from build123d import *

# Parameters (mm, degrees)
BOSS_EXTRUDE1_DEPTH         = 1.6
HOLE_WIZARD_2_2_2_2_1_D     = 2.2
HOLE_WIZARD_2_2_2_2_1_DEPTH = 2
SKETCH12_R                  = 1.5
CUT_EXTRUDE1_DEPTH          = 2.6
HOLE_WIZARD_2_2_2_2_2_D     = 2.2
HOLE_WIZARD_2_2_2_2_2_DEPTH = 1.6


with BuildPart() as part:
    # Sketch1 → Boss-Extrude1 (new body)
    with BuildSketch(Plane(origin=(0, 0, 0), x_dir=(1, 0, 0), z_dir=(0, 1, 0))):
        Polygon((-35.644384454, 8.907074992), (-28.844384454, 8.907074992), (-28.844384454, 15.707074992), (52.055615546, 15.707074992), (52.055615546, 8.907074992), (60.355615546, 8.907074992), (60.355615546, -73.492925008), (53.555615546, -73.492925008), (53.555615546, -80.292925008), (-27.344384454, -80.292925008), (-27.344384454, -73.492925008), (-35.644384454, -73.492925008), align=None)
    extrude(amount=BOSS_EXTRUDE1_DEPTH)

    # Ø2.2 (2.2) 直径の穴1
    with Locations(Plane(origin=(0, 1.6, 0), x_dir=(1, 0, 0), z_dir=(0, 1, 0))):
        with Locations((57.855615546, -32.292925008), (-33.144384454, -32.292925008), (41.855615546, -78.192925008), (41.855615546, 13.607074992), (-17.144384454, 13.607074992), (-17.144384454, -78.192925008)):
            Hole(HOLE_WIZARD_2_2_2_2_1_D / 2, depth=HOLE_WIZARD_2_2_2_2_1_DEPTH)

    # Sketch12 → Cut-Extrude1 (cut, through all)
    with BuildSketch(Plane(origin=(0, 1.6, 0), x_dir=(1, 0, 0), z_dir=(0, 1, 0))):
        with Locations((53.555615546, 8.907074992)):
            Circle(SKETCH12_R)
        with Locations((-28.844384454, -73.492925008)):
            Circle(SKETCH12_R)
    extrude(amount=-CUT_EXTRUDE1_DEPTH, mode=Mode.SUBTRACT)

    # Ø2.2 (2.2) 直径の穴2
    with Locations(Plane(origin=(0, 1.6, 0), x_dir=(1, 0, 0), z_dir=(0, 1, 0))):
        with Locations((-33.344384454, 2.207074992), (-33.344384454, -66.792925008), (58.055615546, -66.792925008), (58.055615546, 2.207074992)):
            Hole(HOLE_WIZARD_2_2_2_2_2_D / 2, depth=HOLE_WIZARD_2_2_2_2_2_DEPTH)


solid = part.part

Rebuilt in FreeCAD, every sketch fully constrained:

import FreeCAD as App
import Part
import Sketcher


def add_polygon(sketch, points):
    """Adds a closed chain of lines whose ends are joined by coincident constraints."""
    first, n = sketch.GeometryCount, len(points)
    for a, b in zip(points, points[1:] + points[:1]):
        sketch.addGeometry(Part.LineSegment(App.Vector(*a, 0), App.Vector(*b, 0)), False)
    for i in range(n):
        sketch.addConstraint(Sketcher.Constraint("Coincident", first + i, 2, first + (i + 1) % n, 1))

doc = App.newDocument("Part")
body = doc.addObject("PartDesign::Body", "Body")

# Sketch on XZ plane
sketch1 = body.newObject("Sketcher::SketchObject", "Sketch")
sketch1.AttachmentSupport = (doc.getObject("XZ_Plane"), [""])
sketch1.MapMode = "FlatFace"
add_polygon(sketch1, [(-29, -9), (-36, -9), (-36, 73), (-27, 73), (-27, 80), (54, 80), (54, 73), (60, 73), (60, -9), (52, -9), (52, -16), (-29, -16)])  # lines 0-11
sketch1.addConstraint([
    Sketcher.Constraint("Horizontal", 0),
    Sketcher.Constraint("Vertical", 1),
    Sketcher.Constraint("Horizontal", 2),
    Sketcher.Constraint("Vertical", 3),
    Sketcher.Constraint("Horizontal", 4),
    Sketcher.Constraint("Vertical", 5),
    Sketcher.Constraint("Horizontal", 6),
    Sketcher.Constraint("Vertical", 7),
    Sketcher.Constraint("Horizontal", 8),
    Sketcher.Constraint("Vertical", 9),
    Sketcher.Constraint("Horizontal", 10),
    Sketcher.Constraint("Vertical", 11),
    Sketcher.Constraint("Horizontal", 2, 2, 5, 2),
    Sketcher.Constraint("Horizontal", 0, 2, 7, 2),
    Sketcher.Constraint("Equal", 0, 6),
    Sketcher.Constraint("Equal", 2, 8),
    Sketcher.Constraint("Equal", 6, 3),
    Sketcher.Constraint("Equal", 5, 9),
    Sketcher.Constraint("DistanceX", 0, 2, 0, 1, 6.8),
    Sketcher.Constraint("DistanceX", 2, 1, 2, 2, 8.3),
    Sketcher.Constraint("DistanceX", 4, 1, 4, 2, 80.9),
    Sketcher.Constraint("DistanceY", 1, 1, 1, 2, 82.4),
    Sketcher.Constraint("DistanceX", 0, 2, -1, 1, 35.644384),
    Sketcher.Constraint("DistanceY", 0, 2, -1, 1, 8.907075),
])
pad1 = body.newObject("PartDesign::Pad", "Pad")
pad1.Profile = sketch1
pad1.Length = 1.6
pad1.Reversed = True

# Sketch on XZ plane
sketch2 = body.newObject("Sketcher::SketchObject", "Sketch001")
sketch2.AttachmentSupport = (doc.getObject("XZ_Plane"), [""])
sketch2.MapMode = "FlatFace"
sketch2.AttachmentOffset = App.Placement(App.Vector(0, 0, -1.6), App.Rotation())
sketch2.addGeometry([
    Part.Circle(App.Vector(57.9, 32.3, 0), App.Vector(0, 0, 1), 1.1),  # 0
    Part.Circle(App.Vector(-33.1, 32.3, 0), App.Vector(0, 0, 1), 1.1),  # 1
    Part.Circle(App.Vector(41.9, 78.2, 0), App.Vector(0, 0, 1), 1.1),  # 2
    Part.Circle(App.Vector(41.9, -13.6, 0), App.Vector(0, 0, 1), 1.1),  # 3
    Part.Circle(App.Vector(-17.1, -13.6, 0), App.Vector(0, 0, 1), 1.1),  # 4
    Part.Circle(App.Vector(-17.1, 78.2, 0), App.Vector(0, 0, 1), 1.1),  # 5
], False)
sketch2.addConstraint([
    Sketcher.Constraint("Equal", 0, 1),
    Sketcher.Constraint("Equal", 1, 2),
    Sketcher.Constraint("Equal", 2, 3),
    Sketcher.Constraint("Equal", 3, 4),
    Sketcher.Constraint("Equal", 4, 5),
    Sketcher.Constraint("Horizontal", 0, 3, 1, 3),
    Sketcher.Constraint("Horizontal", 3, 3, 4, 3),
    Sketcher.Constraint("Horizontal", 2, 3, 5, 3),
    Sketcher.Constraint("Vertical", 2, 3, 3, 3),
    Sketcher.Constraint("Vertical", 4, 3, 5, 3),
    Sketcher.Constraint("Diameter", 0, 2.2),
    Sketcher.Constraint("DistanceX", 1, 3, 0, 3, 91.0),
    Sketcher.Constraint("DistanceX", 2, 3, 0, 3, 16.0),
    Sketcher.Constraint("DistanceX", 1, 3, 4, 3, 16.0),
    Sketcher.Constraint("DistanceY", 0, 3, 2, 3, 45.9),
    Sketcher.Constraint("DistanceY", 3, 3, 0, 3, 45.9),
    Sketcher.Constraint("DistanceX", -1, 1, 0, 3, 57.855616),
    Sketcher.Constraint("DistanceY", -1, 1, 0, 3, 32.292925),
])
doc.recompute()
hole = body.newObject("PartDesign::Hole", "Hole")
hole.Profile = sketch2
hole.ThreadType = "None"
hole.Diameter = 2.2
hole.DepthType = "Dimension"
hole.Depth = 2
hole.DrillPoint = "Flat"
hole.Reversed = True

# Sketch on XZ plane
sketch3 = body.newObject("Sketcher::SketchObject", "Sketch002")
sketch3.AttachmentSupport = (doc.getObject("XZ_Plane"), [""])
sketch3.MapMode = "FlatFace"
sketch3.AttachmentOffset = App.Placement(App.Vector(0, 0, -1.6), App.Rotation())
sketch3.addGeometry([
    Part.Circle(App.Vector(53.6, -8.9, 0), App.Vector(0, 0, 1), 1.5),
    Part.Circle(App.Vector(-28.8, 73.5, 0), App.Vector(0, 0, 1), 1.5),
], False)
sketch3.addConstraint([
    Sketcher.Constraint("Equal", 0, 1),
    Sketcher.Constraint("Diameter", 0, 3.0),
    Sketcher.Constraint("DistanceX", 1, 3, 0, 3, 82.4),
    Sketcher.Constraint("DistanceY", 0, 3, 1, 3, 82.4),
    Sketcher.Constraint("DistanceX", -1, 1, 0, 3, 53.555616),
    Sketcher.Constraint("DistanceY", 0, 3, -1, 1, 8.907075),
])
pocket1 = body.newObject("PartDesign::Pocket", "Pocket")
pocket1.Profile = sketch3
pocket1.Type = "ThroughAll"
pocket1.Reversed = True

# Sketch on XZ plane
sketch4 = body.newObject("Sketcher::SketchObject", "Sketch003")
sketch4.AttachmentSupport = (doc.getObject("XZ_Plane"), [""])
sketch4.MapMode = "FlatFace"
sketch4.AttachmentOffset = App.Placement(App.Vector(0, 0, -1.6), App.Rotation())
sketch4.addGeometry([
    Part.Circle(App.Vector(-33.3, -2.2, 0), App.Vector(0, 0, 1), 1.1),
    Part.Circle(App.Vector(-33.3, 66.8, 0), App.Vector(0, 0, 1), 1.1),
    Part.Circle(App.Vector(58.1, 66.8, 0), App.Vector(0, 0, 1), 1.1),
    Part.Circle(App.Vector(58.1, -2.2, 0), App.Vector(0, 0, 1), 1.1),
], False)
sketch4.addConstraint([
    Sketcher.Constraint("Equal", 0, 1),
    Sketcher.Constraint("Equal", 1, 2),
    Sketcher.Constraint("Equal", 2, 3),
    Sketcher.Constraint("Horizontal", 1, 3, 2, 3),
    Sketcher.Constraint("Horizontal", 0, 3, 3, 3),
    Sketcher.Constraint("Vertical", 0, 3, 1, 3),
    Sketcher.Constraint("Vertical", 2, 3, 3, 3),
    Sketcher.Constraint("Diameter", 0, 2.2),
    Sketcher.Constraint("DistanceY", 0, 3, 1, 3, 69.0),
    Sketcher.Constraint("DistanceX", 1, 3, 2, 3, 91.4),
    Sketcher.Constraint("DistanceX", 0, 3, -1, 1, 33.344384),
    Sketcher.Constraint("DistanceY", 0, 3, -1, 1, 2.207075),
])
doc.recompute()
hole2 = body.newObject("PartDesign::Hole", "Hole001")
hole2.Profile = sketch4
hole2.ThreadType = "None"
hole2.Diameter = 2.2
hole2.DepthType = "Dimension"
hole2.Depth = 1.6
hole2.DrillPoint = "Flat"
hole2.Reversed = True

doc.recompute()
